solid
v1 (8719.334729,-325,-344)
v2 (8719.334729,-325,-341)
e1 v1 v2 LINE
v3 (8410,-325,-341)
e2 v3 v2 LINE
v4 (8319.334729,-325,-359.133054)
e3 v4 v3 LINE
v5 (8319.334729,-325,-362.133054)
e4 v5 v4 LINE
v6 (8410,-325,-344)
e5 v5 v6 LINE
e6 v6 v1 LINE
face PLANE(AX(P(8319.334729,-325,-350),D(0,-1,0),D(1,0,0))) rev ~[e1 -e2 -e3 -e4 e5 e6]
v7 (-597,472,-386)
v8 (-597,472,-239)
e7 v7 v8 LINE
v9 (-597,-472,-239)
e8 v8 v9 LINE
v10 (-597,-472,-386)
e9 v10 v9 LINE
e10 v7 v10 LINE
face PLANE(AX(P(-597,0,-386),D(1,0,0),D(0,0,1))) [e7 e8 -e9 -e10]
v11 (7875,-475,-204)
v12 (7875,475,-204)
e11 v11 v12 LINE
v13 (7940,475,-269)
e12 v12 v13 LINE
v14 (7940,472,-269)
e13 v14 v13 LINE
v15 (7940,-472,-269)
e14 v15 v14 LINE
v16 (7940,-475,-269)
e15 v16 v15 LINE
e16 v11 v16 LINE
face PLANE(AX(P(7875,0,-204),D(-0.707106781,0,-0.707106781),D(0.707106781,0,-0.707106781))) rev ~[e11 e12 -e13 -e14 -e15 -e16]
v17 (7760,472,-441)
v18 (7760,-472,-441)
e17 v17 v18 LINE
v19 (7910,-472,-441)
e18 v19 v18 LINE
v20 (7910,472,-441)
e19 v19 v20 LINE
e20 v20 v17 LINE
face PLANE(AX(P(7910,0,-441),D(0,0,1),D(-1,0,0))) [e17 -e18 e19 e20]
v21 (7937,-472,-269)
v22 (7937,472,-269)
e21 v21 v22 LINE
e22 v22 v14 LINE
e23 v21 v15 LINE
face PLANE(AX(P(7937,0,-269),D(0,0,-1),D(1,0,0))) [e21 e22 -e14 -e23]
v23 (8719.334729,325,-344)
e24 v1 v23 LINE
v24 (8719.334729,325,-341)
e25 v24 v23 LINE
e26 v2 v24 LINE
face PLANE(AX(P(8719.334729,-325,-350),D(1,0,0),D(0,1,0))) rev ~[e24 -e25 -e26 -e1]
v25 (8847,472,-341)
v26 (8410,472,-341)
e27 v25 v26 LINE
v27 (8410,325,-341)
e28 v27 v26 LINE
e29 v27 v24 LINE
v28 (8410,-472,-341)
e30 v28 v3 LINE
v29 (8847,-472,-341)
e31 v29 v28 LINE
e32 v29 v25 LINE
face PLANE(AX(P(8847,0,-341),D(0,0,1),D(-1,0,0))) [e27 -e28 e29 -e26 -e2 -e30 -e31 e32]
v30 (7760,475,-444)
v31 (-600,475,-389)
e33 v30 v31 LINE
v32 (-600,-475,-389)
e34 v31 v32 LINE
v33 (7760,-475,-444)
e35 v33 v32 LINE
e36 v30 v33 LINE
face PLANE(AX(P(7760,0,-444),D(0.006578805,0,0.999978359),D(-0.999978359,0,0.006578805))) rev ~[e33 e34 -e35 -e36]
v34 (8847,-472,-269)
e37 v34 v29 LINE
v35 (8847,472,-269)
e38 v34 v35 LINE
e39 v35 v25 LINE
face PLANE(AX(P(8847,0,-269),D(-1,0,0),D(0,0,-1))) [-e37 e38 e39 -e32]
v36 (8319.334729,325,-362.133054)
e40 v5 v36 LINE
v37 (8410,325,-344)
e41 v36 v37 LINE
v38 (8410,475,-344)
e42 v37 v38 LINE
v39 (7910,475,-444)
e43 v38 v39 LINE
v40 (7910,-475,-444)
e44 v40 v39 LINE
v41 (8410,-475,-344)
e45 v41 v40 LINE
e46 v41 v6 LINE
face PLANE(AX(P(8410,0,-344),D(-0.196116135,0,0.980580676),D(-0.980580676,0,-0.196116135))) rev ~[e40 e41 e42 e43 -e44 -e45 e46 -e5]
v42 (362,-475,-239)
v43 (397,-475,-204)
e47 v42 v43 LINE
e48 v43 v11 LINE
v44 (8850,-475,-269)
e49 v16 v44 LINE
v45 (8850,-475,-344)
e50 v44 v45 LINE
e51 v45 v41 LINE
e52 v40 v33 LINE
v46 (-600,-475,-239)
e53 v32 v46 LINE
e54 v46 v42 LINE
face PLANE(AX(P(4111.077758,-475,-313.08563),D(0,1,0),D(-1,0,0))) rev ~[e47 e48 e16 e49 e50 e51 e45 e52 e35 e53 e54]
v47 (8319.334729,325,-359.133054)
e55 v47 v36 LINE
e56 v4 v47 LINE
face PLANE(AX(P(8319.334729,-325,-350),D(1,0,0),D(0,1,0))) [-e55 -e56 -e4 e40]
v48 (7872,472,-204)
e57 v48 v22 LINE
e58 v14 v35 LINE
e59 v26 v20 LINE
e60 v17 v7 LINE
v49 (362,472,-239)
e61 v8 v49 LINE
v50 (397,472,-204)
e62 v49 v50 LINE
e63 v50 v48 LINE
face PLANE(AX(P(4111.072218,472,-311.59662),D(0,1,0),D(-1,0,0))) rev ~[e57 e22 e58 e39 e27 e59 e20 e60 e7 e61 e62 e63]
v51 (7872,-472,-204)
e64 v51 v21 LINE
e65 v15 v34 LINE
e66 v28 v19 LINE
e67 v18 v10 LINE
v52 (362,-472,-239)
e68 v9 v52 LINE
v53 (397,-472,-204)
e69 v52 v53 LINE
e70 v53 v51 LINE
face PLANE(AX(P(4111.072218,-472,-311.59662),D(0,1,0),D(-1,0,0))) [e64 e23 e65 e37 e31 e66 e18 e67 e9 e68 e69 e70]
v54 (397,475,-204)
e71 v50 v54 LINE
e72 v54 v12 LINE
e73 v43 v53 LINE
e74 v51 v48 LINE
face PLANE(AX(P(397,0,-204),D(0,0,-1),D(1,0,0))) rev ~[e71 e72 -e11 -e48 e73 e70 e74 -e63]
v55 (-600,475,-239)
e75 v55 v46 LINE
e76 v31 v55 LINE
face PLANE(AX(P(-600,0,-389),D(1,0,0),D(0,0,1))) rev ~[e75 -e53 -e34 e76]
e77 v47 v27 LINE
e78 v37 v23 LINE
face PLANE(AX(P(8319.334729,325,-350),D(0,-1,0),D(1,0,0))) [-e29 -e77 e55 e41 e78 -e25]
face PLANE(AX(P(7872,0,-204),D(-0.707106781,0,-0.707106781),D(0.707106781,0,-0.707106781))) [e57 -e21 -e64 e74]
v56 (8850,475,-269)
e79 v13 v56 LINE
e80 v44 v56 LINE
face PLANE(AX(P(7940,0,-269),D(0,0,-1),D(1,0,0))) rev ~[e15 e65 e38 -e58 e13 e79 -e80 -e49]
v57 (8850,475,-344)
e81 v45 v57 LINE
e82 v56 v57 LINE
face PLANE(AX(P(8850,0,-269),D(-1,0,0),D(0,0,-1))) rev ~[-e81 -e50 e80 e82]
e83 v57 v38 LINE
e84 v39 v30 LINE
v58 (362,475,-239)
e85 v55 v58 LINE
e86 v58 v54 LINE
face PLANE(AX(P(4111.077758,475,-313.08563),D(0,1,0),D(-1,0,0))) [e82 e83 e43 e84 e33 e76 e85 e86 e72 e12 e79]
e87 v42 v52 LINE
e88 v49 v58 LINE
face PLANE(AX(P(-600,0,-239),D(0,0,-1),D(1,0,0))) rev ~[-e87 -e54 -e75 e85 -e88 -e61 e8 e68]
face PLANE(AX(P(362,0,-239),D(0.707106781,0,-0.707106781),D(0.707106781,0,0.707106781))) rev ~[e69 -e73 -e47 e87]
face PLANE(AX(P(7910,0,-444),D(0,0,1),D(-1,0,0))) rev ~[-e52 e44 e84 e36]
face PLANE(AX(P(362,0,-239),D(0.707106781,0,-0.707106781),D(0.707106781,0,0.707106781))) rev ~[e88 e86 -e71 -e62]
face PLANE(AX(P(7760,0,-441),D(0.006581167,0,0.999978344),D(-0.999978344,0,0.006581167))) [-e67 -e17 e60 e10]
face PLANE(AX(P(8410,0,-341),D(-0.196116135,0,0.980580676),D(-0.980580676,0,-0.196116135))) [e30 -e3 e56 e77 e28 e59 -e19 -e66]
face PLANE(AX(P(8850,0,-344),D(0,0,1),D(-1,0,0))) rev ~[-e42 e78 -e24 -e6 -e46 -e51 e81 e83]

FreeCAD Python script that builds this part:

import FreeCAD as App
import Part
import Sketcher
from FreeCAD import Vector
Q = App.Units.Quantity

doc = App.newDocument("Part")
params = doc.addObject("Spreadsheet::Sheet", "Params")
for row, (alias, value) in enumerate([
    ("sketch1_width", "400 mm"),
    ("sketch1_height", "650 mm"),
    ("pad1_length", "50 mm"),
    ("sketch2_width", "959 mm"),
    ("sketch2_width2", "150 mm"),
    ("sketch2_width3", "437 mm"),
    ("sketch2_width4", "910 mm"),
    ("sketch2_width5", "7475 mm"),
    ("pad2_length", "944 mm"),
    ("sketch3_width", "962 mm"),
    ("sketch3_width2", "150 mm"),
    ("sketch3_width3", "440 mm"),
    ("sketch3_width4", "910 mm"),
    ("sketch3_width5", "7478 mm"),
    ("pad3_length", "950 mm"),
], start=1):
    params.set(f"A{row}", alias)
    params.set(f"B{row}", "=" + value)
    params.setAlias(f"B{row}", alias)

body = doc.addObject("PartDesign::Body", "Body")

# Sketch on XY plane
sketch1 = body.newObject("Sketcher::SketchObject", "Sketch")
sketch1.AttachmentSupport = (doc.getObject("XY_Plane"), [""])
sketch1.MapMode = "FlatFace"
sketch1.addGeometry([
    Part.LineSegment(Vector(8471.334729, 325, 0), Vector(8471.334729, -325, 0)),
    Part.LineSegment(Vector(8471.334729, -325, 0), Vector(8871.334729, -325, 0)),
    Part.LineSegment(Vector(8871.334729, -325, 0), Vector(8871.334729, 325, 0)),
    Part.LineSegment(Vector(8871.334729, 325, 0), Vector(8471.334729, 325, 0)),
], False)
sketch1.addConstraint([
    Sketcher.Constraint("Coincident", 0, 2, 1, 1),
    Sketcher.Constraint("Coincident", 1, 2, 2, 1),
    Sketcher.Constraint("Coincident", 2, 2, 3, 1),
    Sketcher.Constraint("Coincident", 3, 2, 0, 1),
    Sketcher.Constraint("Vertical", 0),
    Sketcher.Constraint("Horizontal", 1),
    Sketcher.Constraint("Vertical", 2),
    Sketcher.Constraint("Horizontal", 3),
    Sketcher.Constraint("DistanceX", 1, 1, 1, 2, Q("400 mm")),
    Sketcher.Constraint("DistanceY", 0, 2, 0, 1, Q("650 mm")),
    Sketcher.Constraint("DistanceY", 0, 2, -1, 1, Q("325 mm")),
    Sketcher.Constraint("DistanceX", -1, 1, 0, 2, Q("8471.334729 mm")),
])
sketch1.setExpression("Constraints[8]", "Params.sketch1_width")
sketch1.setExpression("Constraints[9]", "Params.sketch1_height")
pad1 = body.newObject("PartDesign::Pad", "Pad")
pad1.Profile = sketch1
pad1.setExpression("Length", "Params.pad1_length")
pad1.Midplane = True
body2 = doc.addObject("PartDesign::Body", "Body001")
doc.recompute()

body.Placement = App.Placement(Vector(-152, 0, -350), App.Rotation(Vector(0, 0, 1), 0))
boolean = body2.newObject("PartDesign::Boolean", "Boolean")
boolean.Type = "Fuse"
boolean.addObjects([body])
body3 = doc.addObject("PartDesign::Body", "Body002")

# Sketch on XZ plane
sketch2 = body3.newObject("Sketcher::SketchObject", "Sketch001")
sketch2.AttachmentSupport = (doc.getObject("XZ_Plane002"), [""])
sketch2.MapMode = "FlatFace"
sketch2.addGeometry([
    Part.LineSegment(Vector(362, -242, 0), Vector(-597, -242, 0)),  # 0
    Part.LineSegment(Vector(-597, -242, 0), Vector(-597, -389, 0)),  # 1
    Part.LineSegment(Vector(-597, -389, 0), Vector(7760, -444, 0)),  # 2
    Part.LineSegment(Vector(7760, -444, 0), Vector(7910, -444, 0)),  # 3
    Part.LineSegment(Vector(7910, -444, 0), Vector(8410, -344, 0)),  # 4
    Part.LineSegment(Vector(8410, -344, 0), Vector(8847, -344, 0)),  # 5
    Part.LineSegment(Vector(8847, -344, 0), Vector(8847, -272, 0)),  # 6
    Part.LineSegment(Vector(8847, -272, 0), Vector(7937, -272, 0)),  # 7
    Part.LineSegment(Vector(7937, -272, 0), Vector(7872, -207, 0)),  # 8
    Part.LineSegment(Vector(7872, -207, 0), Vector(397, -207, 0)),  # 9
    Part.LineSegment(Vector(397, -207, 0), Vector(362, -242, 0)),  # 10
], False)
sketch2.addConstraint([
    Sketcher.Constraint("Coincident", 0, 2, 1, 1),
    Sketcher.Constraint("Coincident", 1, 2, 2, 1),
    Sketcher.Constraint("Coincident", 2, 2, 3, 1),
    Sketcher.Constraint("Coincident", 3, 2, 4, 1),
    Sketcher.Constraint("Coincident", 4, 2, 5, 1),
    Sketcher.Constraint("Coincident", 5, 2, 6, 1),
    Sketcher.Constraint("Coincident", 6, 2, 7, 1),
    Sketcher.Constraint("Coincident", 7, 2, 8, 1),
    Sketcher.Constraint("Coincident", 8, 2, 9, 1),
    Sketcher.Constraint("Coincident", 9, 2, 10, 1),
    Sketcher.Constraint("Coincident", 10, 2, 0, 1),
    Sketcher.Constraint("Horizontal", 0),
    Sketcher.Constraint("Vertical", 1),
    Sketcher.Constraint("Horizontal", 3),
    Sketcher.Constraint("Horizontal", 5),
    Sketcher.Constraint("Vertical", 6),
    Sketcher.Constraint("Horizontal", 7),
    Sketcher.Constraint("Horizontal", 9),
    Sketcher.Constraint("Perpendicular", 8, 10),
    Sketcher.Constraint("DistanceX", 0, 2, 0, 1, Q("959 mm")),
    Sketcher.Constraint("DistanceX", 3, 1, 3, 2, Q("150 mm")),
    Sketcher.Constraint("DistanceX", 5, 1, 5, 2, Q("437 mm")),
    Sketcher.Constraint("DistanceX", 7, 2, 7, 1, Q("910 mm")),
    Sketcher.Constraint("DistanceX", 9, 2, 9, 1, Q("7475 mm")),
    Sketcher.Constraint("DistanceY", 1, 2, 1, 1, Q("147 mm")),
    Sketcher.Constraint("DistanceY", 6, 1, 6, 2, Q("72 mm")),
    Sketcher.Constraint("Angle", 8, Q("135 deg")),
    Sketcher.Constraint("DistanceX", 0, 2, -1, 1, Q("597 mm")),
    Sketcher.Constraint("DistanceY", 0, 2, -1, 1, Q("242 mm")),
    Sketcher.Constraint("DistanceX", -1, 1, 2, 2, Q("7760 mm")),
    Sketcher.Constraint("DistanceY", 2, 2, -1, 1, Q("444 mm")),
    Sketcher.Constraint("DistanceX", -1, 1, 4, 2, Q("8410 mm")),
    Sketcher.Constraint("DistanceY", 4, 2, -1, 1, Q("344 mm")),
])
sketch2.setExpression("Constraints[19]", "Params.sketch2_width")
sketch2.setExpression("Constraints[20]", "Params.sketch2_width2")
sketch2.setExpression("Constraints[21]", "Params.sketch2_width3")
sketch2.setExpression("Constraints[22]", "Params.sketch2_width4")
sketch2.setExpression("Constraints[23]", "Params.sketch2_width5")
pad2 = body3.newObject("PartDesign::Pad", "Pad001")
pad2.Profile = sketch2
pad2.setExpression("Length", "Params.pad2_length")
pad2.Midplane = True
body4 = doc.addObject("PartDesign::Body", "Body003")
doc.recompute()

body3.Placement = App.Placement(Vector(0, 0, 3), App.Rotation(Vector(0, 0, 1), 0))
boolean2 = body4.newObject("PartDesign::Boolean", "Boolean001")
boolean2.Type = "Fuse"
boolean2.addObjects([body3])
body5 = doc.addObject("PartDesign::Body", "Body004")

# Sketch on XZ plane
sketch3 = body5.newObject("Sketcher::SketchObject", "Sketch002")
sketch3.AttachmentSupport = (doc.getObject("XZ_Plane004"), [""])
sketch3.MapMode = "FlatFace"
sketch3.addGeometry([
    Part.LineSegment(Vector(362, -239, 0), Vector(-600, -239, 0)),  # 0
    Part.LineSegment(Vector(-600, -239, 0), Vector(-600, -389, 0)),  # 1
    Part.LineSegment(Vector(-600, -389, 0), Vector(7760, -444, 0)),  # 2
    Part.LineSegment(Vector(7760, -444, 0), Vector(7910, -444, 0)),  # 3
    Part.LineSegment(Vector(7910, -444, 0), Vector(8410, -344, 0)),  # 4
    Part.LineSegment(Vector(8410, -344, 0), Vector(8850, -344, 0)),  # 5
    Part.LineSegment(Vector(8850, -344, 0), Vector(8850, -269, 0)),  # 6
    Part.LineSegment(Vector(8850, -269, 0), Vector(7940, -269, 0)),  # 7
    Part.LineSegment(Vector(7940, -269, 0), Vector(7875, -204, 0)),  # 8
    Part.LineSegment(Vector(7875, -204, 0), Vector(397, -204, 0)),  # 9
    Part.LineSegment(Vector(397, -204, 0), Vector(362, -239, 0)),  # 10
], False)
sketch3.addConstraint([
    Sketcher.Constraint("Coincident", 0, 2, 1, 1),
    Sketcher.Constraint("Coincident", 1, 2, 2, 1),
    Sketcher.Constraint("Coincident", 2, 2, 3, 1),
    Sketcher.Constraint("Coincident", 3, 2, 4, 1),
    Sketcher.Constraint("Coincident", 4, 2, 5, 1),
    Sketcher.Constraint("Coincident", 5, 2, 6, 1),
    Sketcher.Constraint("Coincident", 6, 2, 7, 1),
    Sketcher.Constraint("Coincident", 7, 2, 8, 1),
    Sketcher.Constraint("Coincident", 8, 2, 9, 1),
    Sketcher.Constraint("Coincident", 9, 2, 10, 1),
    Sketcher.Constraint("Coincident", 10, 2, 0, 1),
    Sketcher.Constraint("Horizontal", 0),
    Sketcher.Constraint("Vertical", 1),
    Sketcher.Constraint("Horizontal", 3),
    Sketcher.Constraint("Horizontal", 5),
    Sketcher.Constraint("Vertical", 6),
    Sketcher.Constraint("Horizontal", 7),
    Sketcher.Constraint("Horizontal", 9),
    Sketcher.Constraint("Perpendicular", 8, 10),
    Sketcher.Constraint("Equal", 3, 1),
    Sketcher.Constraint("DistanceX", 0, 2, 0, 1, Q("962 mm")),
    Sketcher.Constraint("DistanceX", 3, 1, 3, 2, Q("150 mm")),
    Sketcher.Constraint("DistanceX", 5, 1, 5, 2, Q("440 mm")),
    Sketcher.Constraint("DistanceX", 7, 2, 7, 1, Q("910 mm")),
    Sketcher.Constraint("DistanceX", 9, 2, 9, 1, Q("7478 mm")),
    Sketcher.Constraint("DistanceY", 6, 1, 6, 2, Q("75 mm")),
    Sketcher.Constraint("Angle", 8, Q("135 deg")),
    Sketcher.Constraint("DistanceX", 0, 2, -1, 1, Q("600 mm")),
    Sketcher.Constraint("DistanceY", 0, 2, -1, 1, Q("239 mm")),
    Sketcher.Constraint("DistanceX", -1, 1, 2, 2, Q("7760 mm")),
    Sketcher.Constraint("DistanceY", 2, 2, -1, 1, Q("444 mm")),
    Sketcher.Constraint("DistanceX", -1, 1, 4, 2, Q("8410 mm")),
    Sketcher.Constraint("DistanceY", 4, 2, -1, 1, Q("344 mm")),
])
sketch3.setExpression("Constraints[20]", "Params.sketch3_width")
sketch3.setExpression("Constraints[21]", "Params.sketch3_width2")
sketch3.setExpression("Constraints[22]", "Params.sketch3_width3")
sketch3.setExpression("Constraints[23]", "Params.sketch3_width4")
sketch3.setExpression("Constraints[24]", "Params.sketch3_width5")
pad3 = body5.newObject("PartDesign::Pad", "Pad002")
pad3.Profile = sketch3
pad3.setExpression("Length", "Params.pad3_length")
pad3.Midplane = True
doc.recompute()

boolean3 = body5.newObject("PartDesign::Boolean", "Boolean002")
boolean3.Type = "Cut"
boolean3.addObjects([body4])
doc.recompute()

boolean4 = body5.newObject("PartDesign::Boolean", "Boolean003")
boolean4.Type = "Cut"
boolean4.addObjects([body2])

doc.recompute()
